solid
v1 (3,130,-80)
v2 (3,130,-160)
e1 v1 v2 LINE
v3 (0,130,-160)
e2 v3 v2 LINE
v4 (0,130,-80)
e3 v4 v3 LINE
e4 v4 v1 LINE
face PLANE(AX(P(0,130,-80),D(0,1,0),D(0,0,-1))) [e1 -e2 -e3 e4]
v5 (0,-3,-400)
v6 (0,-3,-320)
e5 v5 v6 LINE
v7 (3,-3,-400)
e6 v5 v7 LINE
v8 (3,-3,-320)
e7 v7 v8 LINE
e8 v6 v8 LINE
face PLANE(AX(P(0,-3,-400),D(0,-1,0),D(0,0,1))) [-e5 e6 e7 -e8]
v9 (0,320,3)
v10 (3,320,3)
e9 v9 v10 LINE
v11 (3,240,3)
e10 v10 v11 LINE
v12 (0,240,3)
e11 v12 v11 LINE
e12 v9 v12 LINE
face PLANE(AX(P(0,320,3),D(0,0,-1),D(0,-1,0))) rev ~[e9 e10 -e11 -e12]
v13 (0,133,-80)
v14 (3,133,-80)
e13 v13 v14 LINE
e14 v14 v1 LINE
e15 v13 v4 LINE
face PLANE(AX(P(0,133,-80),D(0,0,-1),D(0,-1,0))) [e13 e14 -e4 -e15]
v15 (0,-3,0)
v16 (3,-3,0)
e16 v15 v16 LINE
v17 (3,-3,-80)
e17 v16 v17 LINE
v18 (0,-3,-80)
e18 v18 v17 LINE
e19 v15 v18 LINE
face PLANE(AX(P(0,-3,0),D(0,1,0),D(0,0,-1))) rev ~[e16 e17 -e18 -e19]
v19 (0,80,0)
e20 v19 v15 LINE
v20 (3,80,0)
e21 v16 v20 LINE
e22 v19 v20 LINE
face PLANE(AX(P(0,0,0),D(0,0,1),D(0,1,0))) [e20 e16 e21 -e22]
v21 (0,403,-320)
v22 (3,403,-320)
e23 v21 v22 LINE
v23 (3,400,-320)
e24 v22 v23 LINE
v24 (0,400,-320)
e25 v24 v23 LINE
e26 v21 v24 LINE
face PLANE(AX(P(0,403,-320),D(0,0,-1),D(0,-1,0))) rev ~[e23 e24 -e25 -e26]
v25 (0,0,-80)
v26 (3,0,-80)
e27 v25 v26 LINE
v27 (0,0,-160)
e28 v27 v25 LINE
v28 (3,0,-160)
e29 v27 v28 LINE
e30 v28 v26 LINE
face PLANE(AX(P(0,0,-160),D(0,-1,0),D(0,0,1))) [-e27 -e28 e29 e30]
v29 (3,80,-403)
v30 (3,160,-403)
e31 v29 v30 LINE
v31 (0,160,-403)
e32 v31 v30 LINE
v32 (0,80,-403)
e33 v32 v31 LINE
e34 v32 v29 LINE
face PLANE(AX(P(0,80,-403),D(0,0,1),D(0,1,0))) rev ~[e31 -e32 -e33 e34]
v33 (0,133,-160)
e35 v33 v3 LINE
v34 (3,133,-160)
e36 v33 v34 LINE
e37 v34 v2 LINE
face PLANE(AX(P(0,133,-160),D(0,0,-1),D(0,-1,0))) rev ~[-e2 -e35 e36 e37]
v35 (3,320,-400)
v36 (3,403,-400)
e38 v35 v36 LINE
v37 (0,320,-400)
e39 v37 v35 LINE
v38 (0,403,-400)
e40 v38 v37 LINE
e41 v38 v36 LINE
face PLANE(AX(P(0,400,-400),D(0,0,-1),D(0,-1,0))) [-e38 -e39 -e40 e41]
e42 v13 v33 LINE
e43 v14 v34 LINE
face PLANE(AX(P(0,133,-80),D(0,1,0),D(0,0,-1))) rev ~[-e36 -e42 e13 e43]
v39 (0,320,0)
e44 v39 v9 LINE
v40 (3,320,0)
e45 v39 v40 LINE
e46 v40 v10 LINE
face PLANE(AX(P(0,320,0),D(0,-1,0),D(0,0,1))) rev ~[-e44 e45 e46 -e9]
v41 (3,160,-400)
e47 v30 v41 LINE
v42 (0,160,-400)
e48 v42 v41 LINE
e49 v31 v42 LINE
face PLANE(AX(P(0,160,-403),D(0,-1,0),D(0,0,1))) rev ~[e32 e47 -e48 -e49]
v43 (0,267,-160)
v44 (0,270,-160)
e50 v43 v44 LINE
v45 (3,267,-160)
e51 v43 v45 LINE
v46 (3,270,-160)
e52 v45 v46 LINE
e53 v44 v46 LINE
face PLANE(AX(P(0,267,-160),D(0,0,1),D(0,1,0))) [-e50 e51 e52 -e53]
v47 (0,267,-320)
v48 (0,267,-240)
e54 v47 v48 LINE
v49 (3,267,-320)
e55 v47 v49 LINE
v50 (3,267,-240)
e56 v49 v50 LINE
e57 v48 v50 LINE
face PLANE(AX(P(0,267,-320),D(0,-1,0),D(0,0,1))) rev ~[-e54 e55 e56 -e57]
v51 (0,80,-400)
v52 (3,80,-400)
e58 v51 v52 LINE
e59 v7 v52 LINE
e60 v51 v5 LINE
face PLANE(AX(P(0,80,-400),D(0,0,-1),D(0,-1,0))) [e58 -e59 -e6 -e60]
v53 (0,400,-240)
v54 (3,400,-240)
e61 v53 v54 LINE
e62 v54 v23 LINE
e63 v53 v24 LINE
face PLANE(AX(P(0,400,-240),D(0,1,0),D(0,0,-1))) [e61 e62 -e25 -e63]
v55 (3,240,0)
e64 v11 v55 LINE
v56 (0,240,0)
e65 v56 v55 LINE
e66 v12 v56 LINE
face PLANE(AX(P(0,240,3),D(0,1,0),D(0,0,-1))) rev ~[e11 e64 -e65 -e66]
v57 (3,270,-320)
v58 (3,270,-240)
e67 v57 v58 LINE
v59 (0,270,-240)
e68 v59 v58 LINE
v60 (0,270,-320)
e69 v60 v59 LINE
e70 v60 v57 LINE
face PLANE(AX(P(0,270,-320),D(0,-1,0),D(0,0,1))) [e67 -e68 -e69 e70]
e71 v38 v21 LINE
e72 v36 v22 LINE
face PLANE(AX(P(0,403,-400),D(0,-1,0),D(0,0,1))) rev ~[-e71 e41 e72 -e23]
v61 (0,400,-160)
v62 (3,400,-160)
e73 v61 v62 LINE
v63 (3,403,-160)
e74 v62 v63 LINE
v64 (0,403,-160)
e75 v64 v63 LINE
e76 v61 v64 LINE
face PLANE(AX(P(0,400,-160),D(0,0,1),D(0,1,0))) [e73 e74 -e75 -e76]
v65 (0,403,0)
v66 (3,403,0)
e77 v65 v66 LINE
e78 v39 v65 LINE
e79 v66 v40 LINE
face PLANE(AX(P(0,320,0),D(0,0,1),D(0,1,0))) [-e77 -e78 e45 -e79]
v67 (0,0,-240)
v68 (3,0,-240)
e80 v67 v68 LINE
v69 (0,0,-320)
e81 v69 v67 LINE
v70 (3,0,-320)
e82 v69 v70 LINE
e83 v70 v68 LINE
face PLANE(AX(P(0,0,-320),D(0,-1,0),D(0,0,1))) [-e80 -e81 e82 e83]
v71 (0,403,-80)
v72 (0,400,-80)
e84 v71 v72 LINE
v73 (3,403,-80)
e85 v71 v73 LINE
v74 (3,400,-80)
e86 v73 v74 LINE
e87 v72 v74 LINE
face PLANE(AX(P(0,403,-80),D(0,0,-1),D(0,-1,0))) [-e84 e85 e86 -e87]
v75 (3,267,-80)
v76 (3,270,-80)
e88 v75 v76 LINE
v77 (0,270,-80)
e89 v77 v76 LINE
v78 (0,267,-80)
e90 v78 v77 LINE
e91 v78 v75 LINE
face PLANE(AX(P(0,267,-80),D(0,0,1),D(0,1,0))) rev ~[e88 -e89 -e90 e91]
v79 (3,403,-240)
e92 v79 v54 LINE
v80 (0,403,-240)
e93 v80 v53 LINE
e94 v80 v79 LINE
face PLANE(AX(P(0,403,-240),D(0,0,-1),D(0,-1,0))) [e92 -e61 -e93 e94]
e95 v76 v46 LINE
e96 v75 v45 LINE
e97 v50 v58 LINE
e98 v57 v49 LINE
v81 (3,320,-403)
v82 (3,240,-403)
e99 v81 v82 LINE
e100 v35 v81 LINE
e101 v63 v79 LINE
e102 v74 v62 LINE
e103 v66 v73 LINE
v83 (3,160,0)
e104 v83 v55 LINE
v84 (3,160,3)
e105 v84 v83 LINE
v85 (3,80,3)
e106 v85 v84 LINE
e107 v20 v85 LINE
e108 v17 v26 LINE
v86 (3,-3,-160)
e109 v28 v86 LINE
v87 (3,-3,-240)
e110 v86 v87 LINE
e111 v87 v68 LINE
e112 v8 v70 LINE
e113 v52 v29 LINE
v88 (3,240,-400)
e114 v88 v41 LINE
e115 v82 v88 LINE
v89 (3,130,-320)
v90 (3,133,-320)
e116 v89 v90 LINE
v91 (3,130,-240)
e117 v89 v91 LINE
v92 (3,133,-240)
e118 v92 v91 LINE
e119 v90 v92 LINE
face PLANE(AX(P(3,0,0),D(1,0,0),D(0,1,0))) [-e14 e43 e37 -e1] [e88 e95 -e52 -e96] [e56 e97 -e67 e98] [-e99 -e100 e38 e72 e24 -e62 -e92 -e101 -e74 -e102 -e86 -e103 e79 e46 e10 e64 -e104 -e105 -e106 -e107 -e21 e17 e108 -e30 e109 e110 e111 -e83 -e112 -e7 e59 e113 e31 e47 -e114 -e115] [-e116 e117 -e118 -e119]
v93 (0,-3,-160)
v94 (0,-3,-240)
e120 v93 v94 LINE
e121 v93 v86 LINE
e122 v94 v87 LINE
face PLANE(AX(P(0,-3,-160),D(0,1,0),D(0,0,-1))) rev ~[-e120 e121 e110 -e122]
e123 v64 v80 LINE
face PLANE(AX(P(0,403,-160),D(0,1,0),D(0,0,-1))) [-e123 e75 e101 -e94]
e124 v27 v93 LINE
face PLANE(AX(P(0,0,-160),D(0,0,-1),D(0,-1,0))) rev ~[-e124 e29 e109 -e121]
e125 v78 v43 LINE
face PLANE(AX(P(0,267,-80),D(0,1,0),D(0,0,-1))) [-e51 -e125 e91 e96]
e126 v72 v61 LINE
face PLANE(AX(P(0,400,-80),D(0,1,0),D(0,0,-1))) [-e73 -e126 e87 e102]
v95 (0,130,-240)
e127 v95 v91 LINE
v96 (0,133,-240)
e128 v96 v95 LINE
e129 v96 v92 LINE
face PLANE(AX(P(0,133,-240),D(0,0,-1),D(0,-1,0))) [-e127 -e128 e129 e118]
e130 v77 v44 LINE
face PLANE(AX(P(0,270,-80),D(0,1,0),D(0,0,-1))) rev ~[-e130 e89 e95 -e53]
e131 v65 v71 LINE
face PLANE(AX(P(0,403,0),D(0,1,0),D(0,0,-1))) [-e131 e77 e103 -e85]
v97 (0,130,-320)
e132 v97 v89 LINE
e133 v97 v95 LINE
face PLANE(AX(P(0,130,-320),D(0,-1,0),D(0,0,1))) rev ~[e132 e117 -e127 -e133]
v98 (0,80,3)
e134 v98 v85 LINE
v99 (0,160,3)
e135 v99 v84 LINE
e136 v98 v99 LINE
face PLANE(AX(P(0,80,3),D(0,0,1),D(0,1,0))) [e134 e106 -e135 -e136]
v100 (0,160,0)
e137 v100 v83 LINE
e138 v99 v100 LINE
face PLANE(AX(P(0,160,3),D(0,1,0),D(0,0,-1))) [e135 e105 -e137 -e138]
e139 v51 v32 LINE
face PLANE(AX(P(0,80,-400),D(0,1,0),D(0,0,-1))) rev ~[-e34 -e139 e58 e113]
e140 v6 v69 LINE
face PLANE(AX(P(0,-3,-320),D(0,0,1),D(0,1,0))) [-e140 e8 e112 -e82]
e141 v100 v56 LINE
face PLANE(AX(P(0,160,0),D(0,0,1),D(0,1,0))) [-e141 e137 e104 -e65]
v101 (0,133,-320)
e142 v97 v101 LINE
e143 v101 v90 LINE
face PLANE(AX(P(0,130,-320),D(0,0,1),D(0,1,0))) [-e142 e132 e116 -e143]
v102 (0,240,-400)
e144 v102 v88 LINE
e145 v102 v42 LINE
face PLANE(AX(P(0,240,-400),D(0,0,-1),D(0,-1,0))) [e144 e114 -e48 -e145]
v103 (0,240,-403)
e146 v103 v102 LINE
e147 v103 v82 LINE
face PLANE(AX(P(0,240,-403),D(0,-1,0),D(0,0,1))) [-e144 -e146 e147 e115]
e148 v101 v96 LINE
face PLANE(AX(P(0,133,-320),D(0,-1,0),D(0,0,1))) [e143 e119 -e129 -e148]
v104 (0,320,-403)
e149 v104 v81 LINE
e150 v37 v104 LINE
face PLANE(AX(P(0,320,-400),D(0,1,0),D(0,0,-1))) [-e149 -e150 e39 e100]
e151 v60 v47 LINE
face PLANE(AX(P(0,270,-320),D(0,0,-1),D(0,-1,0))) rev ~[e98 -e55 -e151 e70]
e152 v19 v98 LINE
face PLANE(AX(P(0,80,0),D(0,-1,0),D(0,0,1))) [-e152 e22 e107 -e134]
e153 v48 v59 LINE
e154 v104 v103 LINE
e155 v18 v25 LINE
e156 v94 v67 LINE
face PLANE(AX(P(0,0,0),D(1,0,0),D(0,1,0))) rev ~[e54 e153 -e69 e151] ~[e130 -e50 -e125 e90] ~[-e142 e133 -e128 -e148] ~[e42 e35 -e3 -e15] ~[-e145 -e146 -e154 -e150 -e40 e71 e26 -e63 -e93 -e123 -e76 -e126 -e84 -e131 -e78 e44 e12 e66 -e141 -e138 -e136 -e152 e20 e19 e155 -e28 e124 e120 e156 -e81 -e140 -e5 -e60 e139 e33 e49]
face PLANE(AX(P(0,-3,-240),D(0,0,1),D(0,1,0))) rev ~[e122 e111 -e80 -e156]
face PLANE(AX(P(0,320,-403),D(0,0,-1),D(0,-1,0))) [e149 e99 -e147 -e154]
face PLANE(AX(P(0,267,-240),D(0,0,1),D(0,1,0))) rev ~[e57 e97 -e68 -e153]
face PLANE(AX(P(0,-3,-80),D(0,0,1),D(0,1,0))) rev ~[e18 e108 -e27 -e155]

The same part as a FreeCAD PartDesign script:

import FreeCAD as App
import Part
import Sketcher

V = App.Vector
Q = App.Units.Quantity


def add_polygon(sketch, points):
    """Adds a closed chain of lines whose ends are joined by coincident constraints."""
    first, n = sketch.GeometryCount, len(points)
    for a, b in zip(points, points[1:] + points[:1]):
        sketch.addGeometry(Part.LineSegment(App.Vector(*a, 0), App.Vector(*b, 0)), False)
    for i in range(n):
        sketch.addConstraint(Sketcher.Constraint("Coincident", first + i, 2, first + (i + 1) % n, 1))

doc = App.newDocument("Part")
body = doc.addObject("PartDesign::Body", "Body")

# Sketch on YZ plane
sketch1 = body.newObject("Sketcher::SketchObject", "Sketch")
sketch1.AttachmentSupport = (doc.getObject("YZ_Plane"), [""])
sketch1.MapMode = "FlatFace"
add_polygon(sketch1, [(80, 0), (-3, 0), (-3, -80), (0, -80), (0, -160), (-3, -160), (-3, -240), (0, -240), (0, -320), (-3, -320), (-3, -400), (80, -400), (80, -403), (160, -403), (160, -400), (240, -400), (240, -403), (320, -403), (320, -400), (403, -400), (403, -320), (400, -320), (400, -240), (403, -240), (403, -160), (400, -160), (400, -80), (403, -80), (403, 0), (320, 0), (320, 3), (240, 3), (240, 0), (160, 0), (160, 3), (80, 3)])  # lines 0-35
add_polygon(sketch1, [(133, -320), (130, -320), (130, -240), (133, -240)])  # lines 36-39
add_polygon(sketch1, [(270, -240), (270, -320), (267, -320), (267, -240)])  # lines 40-43
add_polygon(sketch1, [(130, -80), (133, -80), (133, -160), (130, -160)])  # lines 44-47
add_polygon(sketch1, [(267, -160), (267, -80), (270, -80), (270, -160)])  # lines 48-51
sketch1.addConstraint(Sketcher.Constraint("Horizontal", 0))
sketch1.addConstraint(Sketcher.Constraint("Vertical", 1))
sketch1.addConstraint(Sketcher.Constraint("Horizontal", 2))
sketch1.addConstraint(Sketcher.Constraint("Vertical", 3))
sketch1.addConstraint(Sketcher.Constraint("Horizontal", 4))
sketch1.addConstraint(Sketcher.Constraint("Vertical", 5))
sketch1.addConstraint(Sketcher.Constraint("Horizontal", 6))
sketch1.addConstraint(Sketcher.Constraint("Vertical", 7))
sketch1.addConstraint(Sketcher.Constraint("Horizontal", 8))
sketch1.addConstraint(Sketcher.Constraint("Vertical", 9))
sketch1.addConstraint(Sketcher.Constraint("Horizontal", 10))
sketch1.addConstraint(Sketcher.Constraint("Vertical", 11))
sketch1.addConstraint(Sketcher.Constraint("Horizontal", 12))
sketch1.addConstraint(Sketcher.Constraint("Vertical", 13))
sketch1.addConstraint(Sketcher.Constraint("Horizontal", 14))
sketch1.addConstraint(Sketcher.Constraint("Vertical", 15))
sketch1.addConstraint(Sketcher.Constraint("Horizontal", 16))
sketch1.addConstraint(Sketcher.Constraint("Vertical", 17))
sketch1.addConstraint(Sketcher.Constraint("Horizontal", 18))
sketch1.addConstraint(Sketcher.Constraint("Vertical", 19))
sketch1.addConstraint(Sketcher.Constraint("Horizontal", 20))
sketch1.addConstraint(Sketcher.Constraint("Vertical", 21))
sketch1.addConstraint(Sketcher.Constraint("Horizontal", 22))
sketch1.addConstraint(Sketcher.Constraint("Vertical", 23))
sketch1.addConstraint(Sketcher.Constraint("Horizontal", 24))
sketch1.addConstraint(Sketcher.Constraint("Vertical", 25))
sketch1.addConstraint(Sketcher.Constraint("Horizontal", 26))
sketch1.addConstraint(Sketcher.Constraint("Vertical", 27))
sketch1.addConstraint(Sketcher.Constraint("Horizontal", 28))
sketch1.addConstraint(Sketcher.Constraint("Vertical", 29))
sketch1.addConstraint(Sketcher.Constraint("Horizontal", 30))
sketch1.addConstraint(Sketcher.Constraint("Vertical", 31))
sketch1.addConstraint(Sketcher.Constraint("Horizontal", 32))
sketch1.addConstraint(Sketcher.Constraint("Vertical", 33))
sketch1.addConstraint(Sketcher.Constraint("Horizontal", 34))
sketch1.addConstraint(Sketcher.Constraint("Vertical", 35))
sketch1.addConstraint(Sketcher.Constraint("Horizontal", 36))
sketch1.addConstraint(Sketcher.Constraint("Vertical", 37))
sketch1.addConstraint(Sketcher.Constraint("Horizontal", 38))
sketch1.addConstraint(Sketcher.Constraint("Vertical", 39))
sketch1.addConstraint(Sketcher.Constraint("Vertical", 40))
sketch1.addConstraint(Sketcher.Constraint("Horizontal", 41))
sketch1.addConstraint(Sketcher.Constraint("Vertical", 42))
sketch1.addConstraint(Sketcher.Constraint("Horizontal", 43))
sketch1.addConstraint(Sketcher.Constraint("Horizontal", 44))
sketch1.addConstraint(Sketcher.Constraint("Vertical", 45))
sketch1.addConstraint(Sketcher.Constraint("Horizontal", 46))
sketch1.addConstraint(Sketcher.Constraint("Vertical", 47))
sketch1.addConstraint(Sketcher.Constraint("Vertical", 48))
sketch1.addConstraint(Sketcher.Constraint("Horizontal", 49))
sketch1.addConstraint(Sketcher.Constraint("Vertical", 50))
sketch1.addConstraint(Sketcher.Constraint("Horizontal", 51))
sketch1.addConstraint(Sketcher.Constraint("PointOnObject", 0, 2, -1))
sketch1.addConstraint(Sketcher.Constraint("PointOnObject", 2, 2, -2))
sketch1.addConstraint(Sketcher.Constraint("PointOnObject", 6, 2, -2))
sketch1.addConstraint(Sketcher.Constraint("PointOnObject", 27, 2, -1))
sketch1.addConstraint(Sketcher.Constraint("PointOnObject", 31, 2, -1))
sketch1.addConstraint(Sketcher.Constraint("Horizontal", 10, 2, 13, 2))
sketch1.addConstraint(Sketcher.Constraint("Horizontal", 12, 2, 15, 2))
sketch1.addConstraint(Sketcher.Constraint("Horizontal", 14, 2, 17, 2))
sketch1.addConstraint(Sketcher.Constraint("Horizontal", 8, 2, 19, 2))
sketch1.addConstraint(Sketcher.Constraint("Horizontal", 6, 2, 21, 2))
sketch1.addConstraint(Sketcher.Constraint("Horizontal", 4, 2, 23, 2))
sketch1.addConstraint(Sketcher.Constraint("Horizontal", 2, 2, 25, 2))
sketch1.addConstraint(Sketcher.Constraint("Horizontal", 30, 2, 33, 2))
sketch1.addConstraint(Sketcher.Constraint("Horizontal", 20, 2, 36, 2))
sketch1.addConstraint(Sketcher.Constraint("Horizontal", 22, 2, 37, 2))
sketch1.addConstraint(Sketcher.Constraint("Horizontal", 39, 2, 40, 2))
sketch1.addConstraint(Sketcher.Constraint("Horizontal", 38, 2, 42, 2))
sketch1.addConstraint(Sketcher.Constraint("Horizontal", 26, 2, 44, 2))
sketch1.addConstraint(Sketcher.Constraint("Horizontal", 24, 2, 45, 2))
sketch1.addConstraint(Sketcher.Constraint("Horizontal", 47, 2, 48, 2))
sketch1.addConstraint(Sketcher.Constraint("Horizontal", 46, 2, 50, 2))
sketch1.addConstraint(Sketcher.Constraint("Vertical", 1, 2, 4, 2))
sketch1.addConstraint(Sketcher.Constraint("Vertical", 5, 2, 8, 2))
sketch1.addConstraint(Sketcher.Constraint("Vertical", 19, 2, 22, 2))
sketch1.addConstraint(Sketcher.Constraint("Vertical", 21, 2, 24, 2))
sketch1.addConstraint(Sketcher.Constraint("Vertical", 23, 2, 26, 2))
sketch1.addConstraint(Sketcher.Constraint("Vertical", 17, 2, 28, 2))
sketch1.addConstraint(Sketcher.Constraint("Vertical", 15, 2, 30, 2))
sketch1.addConstraint(Sketcher.Constraint("Vertical", 13, 2, 32, 2))
sketch1.addConstraint(Sketcher.Constraint("Vertical", 11, 2, 34, 2))
sketch1.addConstraint(Sketcher.Constraint("Vertical", 39, 2, 44, 2))
sketch1.addConstraint(Sketcher.Constraint("Vertical", 37, 2, 46, 2))
sketch1.addConstraint(Sketcher.Constraint("Vertical", 42, 2, 48, 2))
sketch1.addConstraint(Sketcher.Constraint("Vertical", 43, 2, 49, 2))
sketch1.addConstraint(Sketcher.Constraint("Equal", 12, 14))
sketch1.addConstraint(Sketcher.Constraint("Equal", 14, 16))
sketch1.addConstraint(Sketcher.Constraint("Equal", 10, 18))
sketch1.addConstraint(Sketcher.Constraint("Equal", 8, 20))
sketch1.addConstraint(Sketcher.Constraint("Equal", 26, 36))
sketch1.addConstraint(Sketcher.Constraint("Equal", 38, 41))
sketch1.addConstraint(Sketcher.Constraint("Equal", 34, 1))
sketch1.addConstraint(Sketcher.Constraint("Equal", 1, 3))
sketch1.addConstraint(Sketcher.Constraint("Equal", 3, 5))
sketch1.addConstraint(Sketcher.Constraint("Equal", 5, 7))
sketch1.addConstraint(Sketcher.Constraint("Equal", 7, 9))
sketch1.addConstraint(Sketcher.Constraint("Equal", 51, 11))
sketch1.addConstraint(Sketcher.Constraint("Equal", 17, 29))
sketch1.addConstraint(Sketcher.Constraint("DistanceX", 2, 1, 2, 2, Q("3 mm")))
sketch1.addConstraint(Sketcher.Constraint("DistanceX", 12, 1, 12, 2, Q("80 mm")))
sketch1.addConstraint(Sketcher.Constraint("DistanceX", -1, 1, 10, 2, Q("80 mm")))
sketch1.addConstraint(Sketcher.Constraint("DistanceX", -1, 1, 36, 2, Q("130 mm")))
sketch1.addConstraint(Sketcher.Constraint("DistanceX", 40, 2, 20, 2, Q("130 mm")))
pad1 = body.newObject("PartDesign::Pad", "Pad")
pad1.Profile = sketch1
pad1.Length = 3

doc.recompute()
